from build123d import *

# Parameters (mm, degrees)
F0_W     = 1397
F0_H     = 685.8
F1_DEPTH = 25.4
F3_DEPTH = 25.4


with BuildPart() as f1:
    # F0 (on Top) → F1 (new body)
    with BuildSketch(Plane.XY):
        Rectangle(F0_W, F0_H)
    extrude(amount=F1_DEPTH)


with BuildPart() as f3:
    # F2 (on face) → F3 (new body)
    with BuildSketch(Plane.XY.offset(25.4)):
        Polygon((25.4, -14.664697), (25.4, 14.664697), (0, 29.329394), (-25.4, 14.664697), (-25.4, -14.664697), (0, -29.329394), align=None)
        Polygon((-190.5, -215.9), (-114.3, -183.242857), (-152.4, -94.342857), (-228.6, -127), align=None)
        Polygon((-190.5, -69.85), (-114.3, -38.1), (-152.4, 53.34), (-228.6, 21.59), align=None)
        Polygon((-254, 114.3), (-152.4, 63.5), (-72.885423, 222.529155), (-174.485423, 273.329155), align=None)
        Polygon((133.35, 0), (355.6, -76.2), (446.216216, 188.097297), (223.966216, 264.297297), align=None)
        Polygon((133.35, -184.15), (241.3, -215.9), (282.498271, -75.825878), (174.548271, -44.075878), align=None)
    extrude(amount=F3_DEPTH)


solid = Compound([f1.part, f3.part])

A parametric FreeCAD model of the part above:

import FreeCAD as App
import Part
import Sketcher
from FreeCAD import Vector
Q = App.Units.Quantity

doc = App.newDocument("Part")
body = doc.addObject("PartDesign::Body", "Body")

sketch1 = doc.addObject("Sketcher::SketchObject", "Sketch")
body.addObject(sketch1)
sketch1.AttachmentSupport = (doc.XY_Plane, [""])
sketch1.MapMode = "FlatFace"
sketch1.addGeometry([
    Part.LineSegment(Vector(-698, 343, 0), Vector(-698, -343, 0)),
    Part.LineSegment(Vector(-698, -343, 0), Vector(698, -343, 0)),
    Part.LineSegment(Vector(698, -343, 0), Vector(698, 343, 0)),
    Part.LineSegment(Vector(698, 343, 0), Vector(-698, 343, 0)),
], False)
sketch1.addConstraint([
    Sketcher.Constraint("Coincident", 0, 2, 1, 1),
    Sketcher.Constraint("Coincident", 1, 2, 2, 1),
    Sketcher.Constraint("Coincident", 2, 2, 3, 1),
    Sketcher.Constraint("Coincident", 3, 2, 0, 1),
    Sketcher.Constraint("Vertical", 0),
    Sketcher.Constraint("Horizontal", 1),
    Sketcher.Constraint("Vertical", 2),
    Sketcher.Constraint("Horizontal", 3),
    Sketcher.Constraint("Symmetric", 0, 2, 2, 2, -1, 1),
    Sketcher.Constraint("DistanceX", 1, 1, 1, 2, Q("55 in")),
    Sketcher.Constraint("DistanceY", 0, 2, 0, 1, Q("27 in")),
])
pad1 = doc.addObject("PartDesign::Pad", "Pad")
body.addObject(pad1)
pad1.Profile = sketch1
pad1.Length = Q("1 in")
body2 = doc.addObject("PartDesign::Body", "Body001")
body2.AllowCompound = True

sketch2 = doc.addObject("Sketcher::SketchObject", "Sketch001")
body2.addObject(sketch2)
sketch2.AttachmentSupport = (doc.getObject("XY_Plane001"), [""])
sketch2.MapMode = "FlatFace"
sketch2.AttachmentOffset = App.Placement(Vector(0, 0, 1 * 25.4), App.Rotation())
sketch2.addGeometry([
    Part.LineSegment(Vector(25, -15, 0), Vector(25, 15, 0)),
    Part.LineSegment(Vector(25, 15, 0), Vector(0, 29, 0)),
    Part.LineSegment(Vector(0, 29, 0), Vector(-25, 15, 0)),
    Part.LineSegment(Vector(-25, 15, 0), Vector(-25, -15, 0)),
    Part.LineSegment(Vector(-25, -15, 0), Vector(0, -29, 0)),
    Part.LineSegment(Vector(0, -29, 0), Vector(25, -15, 0)),
    Part.LineSegment(Vector(-190, -216, 0), Vector(-114, -183, 0)),
    Part.LineSegment(Vector(-114, -183, 0), Vector(-152, -94, 0)),
    Part.LineSegment(Vector(-152, -94, 0), Vector(-229, -127, 0)),
    Part.LineSegment(Vector(-229, -127, 0), Vector(-190, -216, 0)),
    Part.LineSegment(Vector(-190, -70, 0), Vector(-114, -38, 0)),
    Part.LineSegment(Vector(-114, -38, 0), Vector(-152, 53, 0)),
    Part.LineSegment(Vector(-152, 53, 0), Vector(-229, 22, 0)),
    Part.LineSegment(Vector(-229, 22, 0), Vector(-190, -70, 0)),
    Part.LineSegment(Vector(-254, 114, 0), Vector(-152, 64, 0)),
    Part.LineSegment(Vector(-152, 64, 0), Vector(-73, 223, 0)),
    Part.LineSegment(Vector(-73, 223, 0), Vector(-174, 273, 0)),
    Part.LineSegment(Vector(-174, 273, 0), Vector(-254, 114, 0)),
    Part.LineSegment(Vector(133, 0, 0), Vector(356, -76, 0)),
    Part.LineSegment(Vector(356, -76, 0), Vector(446, 188, 0)),
    Part.LineSegment(Vector(446, 188, 0), Vector(224, 264, 0)),
    Part.LineSegment(Vector(224, 264, 0), Vector(133, 0, 0)),
    Part.LineSegment(Vector(133, -184, 0), Vector(241, -216, 0)),
    Part.LineSegment(Vector(241, -216, 0), Vector(282, -76, 0)),
    Part.LineSegment(Vector(282, -76, 0), Vector(175, -44, 0)),
    Part.LineSegment(Vector(175, -44, 0), Vector(133, -184, 0)),
], False)
sketch2.addConstraint([
    Sketcher.Constraint("Coincident", 0, 2, 1, 1),
    Sketcher.Constraint("Coincident", 1, 2, 2, 1),
    Sketcher.Constraint("Coincident", 2, 2, 3, 1),
    Sketcher.Constraint("Coincident", 3, 2, 4, 1),
    Sketcher.Constraint("Coincident", 4, 2, 5, 1),
    Sketcher.Constraint("Coincident", 5, 2, 0, 1),
    Sketcher.Constraint("Coincident", 6, 2, 7, 1),
    Sketcher.Constraint("Coincident", 7, 2, 8, 1),
    Sketcher.Constraint("Coincident", 8, 2, 9, 1),
    Sketcher.Constraint("Coincident", 9, 2, 6, 1),
    Sketcher.Constraint("Coincident", 10, 2, 11, 1),
    Sketcher.Constraint("Coincident", 11, 2, 12, 1),
    Sketcher.Constraint("Coincident", 12, 2, 13, 1),
    Sketcher.Constraint("Coincident", 13, 2, 10, 1),
    Sketcher.Constraint("Coincident", 14, 2, 15, 1),
    Sketcher.Constraint("Coincident", 15, 2, 16, 1),
    Sketcher.Constraint("Coincident", 16, 2, 17, 1),
    Sketcher.Constraint("Coincident", 17, 2, 14, 1),
    Sketcher.Constraint("Coincident", 18, 2, 19, 1),
    Sketcher.Constraint("Coincident", 19, 2, 20, 1),
    Sketcher.Constraint("Coincident", 20, 2, 21, 1),
    Sketcher.Constraint("Coincident", 21, 2, 18, 1),
    Sketcher.Constraint("Coincident", 22, 2, 23, 1),
    Sketcher.Constraint("Coincident", 23, 2, 24, 1),
    Sketcher.Constraint("Coincident", 24, 2, 25, 1),
    Sketcher.Constraint("Coincident", 25, 2, 22, 1),
    Sketcher.Constraint("Vertical", 0),
    Sketcher.Constraint("Vertical", 3),
    Sketcher.Constraint("Symmetric", 0, 2, 3, 2, -1, 1),
    Sketcher.Constraint("Symmetric", 1, 2, 4, 2, -1, 1),
    Sketcher.Constraint("PointOnObject", 1, 2, -2),
    Sketcher.Constraint("PointOnObject", 21, 2, -1),
    Sketcher.Constraint("Parallel", 2, 5),
    Sketcher.Constraint("Perpendicular", 6, 7),
    Sketcher.Constraint("Perpendicular", 7, 8),
    Sketcher.Constraint("Perpendicular", 8, 9),
    Sketcher.Constraint("Perpendicular", 10, 11),
    Sketcher.Constraint("Perpendicular", 11, 12),
    Sketcher.Constraint("Perpendicular", 12, 13),
    Sketcher.Constraint("Perpendicular", 14, 15),
    Sketcher.Constraint("Perpendicular", 15, 16),
    Sketcher.Constraint("Perpendicular", 16, 17),
    Sketcher.Constraint("Perpendicular", 18, 19),
    Sketcher.Constraint("Perpendicular", 19, 20),
    Sketcher.Constraint("Perpendicular", 20, 21),
    Sketcher.Constraint("Perpendicular", 22, 23),
    Sketcher.Constraint("Perpendicular", 23, 24),
    Sketcher.Constraint("Perpendicular", 24, 25),
    Sketcher.Constraint("Horizontal", 0, 2, 2, 2),
    Sketcher.Constraint("Horizontal", 9, 2, 22, 2),
    Sketcher.Constraint("Vertical", 6, 2, 10, 2),
    Sketcher.Constraint("Vertical", 7, 2, 11, 2),
    Sketcher.Constraint("Vertical", 8, 2, 12, 2),
    Sketcher.Constraint("Vertical", 11, 2, 14, 2),
    Sketcher.Constraint("Vertical", 21, 2, 25, 2),
    Sketcher.Constraint("Distance", 15, Q("7 in")),
    Sketcher.Constraint("Distance", 19, Q("11 in")),
    Sketcher.Constraint("DistanceX", -1, 1, 0, 2, Q("1 in")),
    Sketcher.Constraint("DistanceX", 7, 2, -1, 1, Q("6 in")),
    Sketcher.Constraint("DistanceX", 8, 2, -1, 1, Q("9 in")),
    Sketcher.Constraint("DistanceY", 8, 2, -1, 1, Q("5 in")),
    Sketcher.Constraint("DistanceX", 17, 2, -1, 1, Q("10 in")),
    Sketcher.Constraint("DistanceX", -1, 1, 18, 2, Q("14 in")),
    Sketcher.Constraint("DistanceY", 18, 2, -1, 1, Q("3 in")),
    Sketcher.Constraint("Angle", 1, Q("150 deg")),
    Sketcher.Constraint("DistanceY", 10, 2, 14, 2, Q("4 in")),
    Sketcher.Constraint("DistanceY", 15, 2, 16, 2, Q("2 in")),
    Sketcher.Constraint("Distance", 11, Q("3.9 in")),
    Sketcher.Constraint("DistanceX", 6, 2, -1, 1, Q("4.5 in")),
    Sketcher.Constraint("DistanceY", 9, 2, -1, 1, Q("8.5 in")),
    Sketcher.Constraint("DistanceY", 10, 2, -1, 1, Q("1.5 in")),
    Sketcher.Constraint("DistanceX", -1, 1, 22, 2, Q("9.5 in")),
    Sketcher.Constraint("Distance", 18, Q("9.25 in")),
    Sketcher.Constraint("DistanceY", 25, 2, -1, 1, Q("7.25 in")),
    Sketcher.Constraint("DistanceY", 0, 2, 19, 2, 173.4326),
    Sketcher.Constraint("DistanceX", -1, 1, 23, 2, 282.498271),
])
pad2 = doc.addObject("PartDesign::Pad", "Pad001")
body2.addObject(pad2)
pad2.Profile = sketch2
pad2.Length = Q("1 in")

doc.recompute()
